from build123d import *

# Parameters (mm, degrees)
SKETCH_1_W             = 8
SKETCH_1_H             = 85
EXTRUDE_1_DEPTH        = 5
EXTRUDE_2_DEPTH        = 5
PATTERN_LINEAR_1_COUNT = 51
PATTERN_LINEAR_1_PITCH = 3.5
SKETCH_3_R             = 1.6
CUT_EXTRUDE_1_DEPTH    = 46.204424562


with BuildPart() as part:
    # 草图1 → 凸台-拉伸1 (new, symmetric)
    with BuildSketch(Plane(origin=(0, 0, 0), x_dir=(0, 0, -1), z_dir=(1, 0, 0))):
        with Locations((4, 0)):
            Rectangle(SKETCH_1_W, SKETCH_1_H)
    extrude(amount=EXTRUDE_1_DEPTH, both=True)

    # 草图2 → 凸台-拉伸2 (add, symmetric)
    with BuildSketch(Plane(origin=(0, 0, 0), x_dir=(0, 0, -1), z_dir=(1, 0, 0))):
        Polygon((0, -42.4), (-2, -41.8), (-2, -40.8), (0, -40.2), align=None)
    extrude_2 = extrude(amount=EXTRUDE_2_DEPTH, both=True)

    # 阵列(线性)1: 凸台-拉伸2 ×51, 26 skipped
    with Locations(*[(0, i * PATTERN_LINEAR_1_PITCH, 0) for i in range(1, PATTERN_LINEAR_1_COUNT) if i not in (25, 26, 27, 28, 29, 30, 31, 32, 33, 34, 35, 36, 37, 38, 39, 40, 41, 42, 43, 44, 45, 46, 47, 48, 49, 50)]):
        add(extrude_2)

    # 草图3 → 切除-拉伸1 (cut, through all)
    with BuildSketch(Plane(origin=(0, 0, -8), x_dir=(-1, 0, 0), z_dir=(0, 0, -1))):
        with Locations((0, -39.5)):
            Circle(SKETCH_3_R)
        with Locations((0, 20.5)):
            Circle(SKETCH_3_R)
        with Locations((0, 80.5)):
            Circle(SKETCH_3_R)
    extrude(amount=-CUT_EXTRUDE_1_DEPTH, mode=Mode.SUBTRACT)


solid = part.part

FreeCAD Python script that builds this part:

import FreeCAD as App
import Part
import Sketcher
Q = App.Units.Quantity

doc = App.newDocument("Part")
params = doc.addObject("Spreadsheet::Sheet", "Params")
for row, (alias, value) in enumerate([
    ("sketch1_width", "85 mm"),
    ("sketch1_height", "8 mm"),
    ("pad1_length", "10 mm"),
    ("sketch2_width", "1 mm"),
    ("sketch2_width2", "2.2 mm"),
    ("pad2_length", "10 mm"),
    ("linearpattern_pitch", "3.5 mm"),
    ("sketch3_diameter", "3.2 mm"),
], start=1):
    params.set(f"A{row}", alias)
    params.set(f"B{row}", "=" + value)
    params.setAlias(f"B{row}", alias)

body = doc.addObject("PartDesign::Body", "Body")

sketch1 = body.newObject("Sketcher::SketchObject", "Sketch")
sketch1.AttachmentSupport = (doc.getObject("YZ_Plane"), [""])
sketch1.MapMode = "FlatFace"
sketch1.addGeometry([
    Part.LineSegment(App.Vector(42.5, 0, 0), App.Vector(-42.5, 0, 0)),
    Part.LineSegment(App.Vector(-42.5, 0, 0), App.Vector(-42.5, -8, 0)),
    Part.LineSegment(App.Vector(-42.5, -8, 0), App.Vector(42.5, -8, 0)),
    Part.LineSegment(App.Vector(42.5, -8, 0), App.Vector(42.5, 0, 0)),
], False)
sketch1.addConstraint([
    Sketcher.Constraint("Coincident", 0, 2, 1, 1),
    Sketcher.Constraint("Coincident", 1, 2, 2, 1),
    Sketcher.Constraint("Coincident", 2, 2, 3, 1),
    Sketcher.Constraint("Coincident", 3, 2, 0, 1),
    Sketcher.Constraint("Horizontal", 0),
    Sketcher.Constraint("Vertical", 1),
    Sketcher.Constraint("Horizontal", 2),
    Sketcher.Constraint("Vertical", 3),
    Sketcher.Constraint("Symmetric", 0, 2, 3, 2, -1, 1),
    Sketcher.Constraint("DistanceX", 0, 2, 0, 1, Q("85 mm")),
    Sketcher.Constraint("DistanceY", 1, 2, 1, 1, Q("8 mm")),
])
sketch1.setExpression("Constraints[9]", "Params.sketch1_width")
sketch1.setExpression("Constraints[10]", "Params.sketch1_height")
pad1 = body.newObject("PartDesign::Pad", "Pad")
pad1.Profile = sketch1
pad1.setExpression("Length", "Params.pad1_length")
pad1.Midplane = True

sketch2 = body.newObject("Sketcher::SketchObject", "Sketch001")
sketch2.AttachmentSupport = (doc.getObject("YZ_Plane"), [""])
sketch2.MapMode = "FlatFace"
sketch2.addGeometry([
    Part.LineSegment(App.Vector(-41.8, 2, 0), App.Vector(-42.4, 0, 0)),
    Part.LineSegment(App.Vector(-42.4, 0, 0), App.Vector(-40.2, 0, 0)),
    Part.LineSegment(App.Vector(-40.2, 0, 0), App.Vector(-40.8, 2, 0)),
    Part.LineSegment(App.Vector(-40.8, 2, 0), App.Vector(-41.8, 2, 0)),
], False)
sketch2.addConstraint([
    Sketcher.Constraint("Coincident", 0, 2, 1, 1),
    Sketcher.Constraint("Coincident", 1, 2, 2, 1),
    Sketcher.Constraint("Coincident", 2, 2, 3, 1),
    Sketcher.Constraint("Coincident", 3, 2, 0, 1),
    Sketcher.Constraint("Horizontal", 1),
    Sketcher.Constraint("Horizontal", 3),
    Sketcher.Constraint("PointOnObject", 0, 2, -1),
    Sketcher.Constraint("Equal", 0, 2),
    Sketcher.Constraint("DistanceX", 3, 2, 3, 1, Q("1 mm")),
    Sketcher.Constraint("DistanceX", 1, 1, 1, 2, Q("2.2 mm")),
    Sketcher.Constraint("DistanceY", -1, 1, 2, 2, Q("2 mm")),
    Sketcher.Constraint("DistanceX", 0, 2, -1, 1, Q("42.4 mm")),
])
sketch2.setExpression("Constraints[8]", "Params.sketch2_width")
sketch2.setExpression("Constraints[9]", "Params.sketch2_width2")
pad2 = body.newObject("PartDesign::Pad", "Pad001")
pad2.Profile = sketch2
pad2.setExpression("Length", "Params.pad2_length")
pad2.Midplane = True
doc.recompute()

linearpattern = body.newObject("PartDesign::LinearPattern", "LinearPattern")
linearpattern.Originals = [pad2]
linearpattern.Direction = (doc.getObject("Y_Axis"), [""])
linearpattern.Mode = "offset"
linearpattern.setExpression("Offset", "Params.linearpattern_pitch")
linearpattern.Occurrences = 25
body.Tip = linearpattern

sketch3 = body.newObject("Sketcher::SketchObject", "Sketch002")
sketch3.AttachmentSupport = (doc.getObject("XY_Plane"), [""])
sketch3.MapMode = "FlatFace"
sketch3.AttachmentOffset = App.Placement(App.Vector(0, 0, -8), App.Rotation())
sketch3.addGeometry([
    Part.Circle(App.Vector(0, -39.5, 0), App.Vector(0, 0, 1), 1.6),
    Part.Circle(App.Vector(0, 20.5, 0), App.Vector(0, 0, 1), 1.6),
    Part.Circle(App.Vector(0, 80.5, 0), App.Vector(0, 0, 1), 1.6),
], False)
sketch3.addConstraint([
    Sketcher.Constraint("Equal", 0, 1),
    Sketcher.Constraint("Equal", 1, 2),
    Sketcher.Constraint("PointOnObject", 0, 3, -2),
    Sketcher.Constraint("PointOnObject", 1, 3, -2),
    Sketcher.Constraint("PointOnObject", 2, 3, -2),
    Sketcher.Constraint("Diameter", 0, Q("3.2 mm")),
    Sketcher.Constraint("DistanceY", 0, 3, 1, 3, Q("60 mm")),
    Sketcher.Constraint("DistanceY", 1, 3, 2, 3, Q("60 mm")),
    Sketcher.Constraint("DistanceY", 0, 3, -1, 1, Q("39.5 mm")),
])
sketch3.setExpression("Constraints[5]", "Params.sketch3_diameter")
pocket1 = body.newObject("PartDesign::Pocket", "Pocket")
pocket1.Profile = sketch3
pocket1.Type = "ThroughAll"
pocket1.Reversed = True

doc.recompute()
